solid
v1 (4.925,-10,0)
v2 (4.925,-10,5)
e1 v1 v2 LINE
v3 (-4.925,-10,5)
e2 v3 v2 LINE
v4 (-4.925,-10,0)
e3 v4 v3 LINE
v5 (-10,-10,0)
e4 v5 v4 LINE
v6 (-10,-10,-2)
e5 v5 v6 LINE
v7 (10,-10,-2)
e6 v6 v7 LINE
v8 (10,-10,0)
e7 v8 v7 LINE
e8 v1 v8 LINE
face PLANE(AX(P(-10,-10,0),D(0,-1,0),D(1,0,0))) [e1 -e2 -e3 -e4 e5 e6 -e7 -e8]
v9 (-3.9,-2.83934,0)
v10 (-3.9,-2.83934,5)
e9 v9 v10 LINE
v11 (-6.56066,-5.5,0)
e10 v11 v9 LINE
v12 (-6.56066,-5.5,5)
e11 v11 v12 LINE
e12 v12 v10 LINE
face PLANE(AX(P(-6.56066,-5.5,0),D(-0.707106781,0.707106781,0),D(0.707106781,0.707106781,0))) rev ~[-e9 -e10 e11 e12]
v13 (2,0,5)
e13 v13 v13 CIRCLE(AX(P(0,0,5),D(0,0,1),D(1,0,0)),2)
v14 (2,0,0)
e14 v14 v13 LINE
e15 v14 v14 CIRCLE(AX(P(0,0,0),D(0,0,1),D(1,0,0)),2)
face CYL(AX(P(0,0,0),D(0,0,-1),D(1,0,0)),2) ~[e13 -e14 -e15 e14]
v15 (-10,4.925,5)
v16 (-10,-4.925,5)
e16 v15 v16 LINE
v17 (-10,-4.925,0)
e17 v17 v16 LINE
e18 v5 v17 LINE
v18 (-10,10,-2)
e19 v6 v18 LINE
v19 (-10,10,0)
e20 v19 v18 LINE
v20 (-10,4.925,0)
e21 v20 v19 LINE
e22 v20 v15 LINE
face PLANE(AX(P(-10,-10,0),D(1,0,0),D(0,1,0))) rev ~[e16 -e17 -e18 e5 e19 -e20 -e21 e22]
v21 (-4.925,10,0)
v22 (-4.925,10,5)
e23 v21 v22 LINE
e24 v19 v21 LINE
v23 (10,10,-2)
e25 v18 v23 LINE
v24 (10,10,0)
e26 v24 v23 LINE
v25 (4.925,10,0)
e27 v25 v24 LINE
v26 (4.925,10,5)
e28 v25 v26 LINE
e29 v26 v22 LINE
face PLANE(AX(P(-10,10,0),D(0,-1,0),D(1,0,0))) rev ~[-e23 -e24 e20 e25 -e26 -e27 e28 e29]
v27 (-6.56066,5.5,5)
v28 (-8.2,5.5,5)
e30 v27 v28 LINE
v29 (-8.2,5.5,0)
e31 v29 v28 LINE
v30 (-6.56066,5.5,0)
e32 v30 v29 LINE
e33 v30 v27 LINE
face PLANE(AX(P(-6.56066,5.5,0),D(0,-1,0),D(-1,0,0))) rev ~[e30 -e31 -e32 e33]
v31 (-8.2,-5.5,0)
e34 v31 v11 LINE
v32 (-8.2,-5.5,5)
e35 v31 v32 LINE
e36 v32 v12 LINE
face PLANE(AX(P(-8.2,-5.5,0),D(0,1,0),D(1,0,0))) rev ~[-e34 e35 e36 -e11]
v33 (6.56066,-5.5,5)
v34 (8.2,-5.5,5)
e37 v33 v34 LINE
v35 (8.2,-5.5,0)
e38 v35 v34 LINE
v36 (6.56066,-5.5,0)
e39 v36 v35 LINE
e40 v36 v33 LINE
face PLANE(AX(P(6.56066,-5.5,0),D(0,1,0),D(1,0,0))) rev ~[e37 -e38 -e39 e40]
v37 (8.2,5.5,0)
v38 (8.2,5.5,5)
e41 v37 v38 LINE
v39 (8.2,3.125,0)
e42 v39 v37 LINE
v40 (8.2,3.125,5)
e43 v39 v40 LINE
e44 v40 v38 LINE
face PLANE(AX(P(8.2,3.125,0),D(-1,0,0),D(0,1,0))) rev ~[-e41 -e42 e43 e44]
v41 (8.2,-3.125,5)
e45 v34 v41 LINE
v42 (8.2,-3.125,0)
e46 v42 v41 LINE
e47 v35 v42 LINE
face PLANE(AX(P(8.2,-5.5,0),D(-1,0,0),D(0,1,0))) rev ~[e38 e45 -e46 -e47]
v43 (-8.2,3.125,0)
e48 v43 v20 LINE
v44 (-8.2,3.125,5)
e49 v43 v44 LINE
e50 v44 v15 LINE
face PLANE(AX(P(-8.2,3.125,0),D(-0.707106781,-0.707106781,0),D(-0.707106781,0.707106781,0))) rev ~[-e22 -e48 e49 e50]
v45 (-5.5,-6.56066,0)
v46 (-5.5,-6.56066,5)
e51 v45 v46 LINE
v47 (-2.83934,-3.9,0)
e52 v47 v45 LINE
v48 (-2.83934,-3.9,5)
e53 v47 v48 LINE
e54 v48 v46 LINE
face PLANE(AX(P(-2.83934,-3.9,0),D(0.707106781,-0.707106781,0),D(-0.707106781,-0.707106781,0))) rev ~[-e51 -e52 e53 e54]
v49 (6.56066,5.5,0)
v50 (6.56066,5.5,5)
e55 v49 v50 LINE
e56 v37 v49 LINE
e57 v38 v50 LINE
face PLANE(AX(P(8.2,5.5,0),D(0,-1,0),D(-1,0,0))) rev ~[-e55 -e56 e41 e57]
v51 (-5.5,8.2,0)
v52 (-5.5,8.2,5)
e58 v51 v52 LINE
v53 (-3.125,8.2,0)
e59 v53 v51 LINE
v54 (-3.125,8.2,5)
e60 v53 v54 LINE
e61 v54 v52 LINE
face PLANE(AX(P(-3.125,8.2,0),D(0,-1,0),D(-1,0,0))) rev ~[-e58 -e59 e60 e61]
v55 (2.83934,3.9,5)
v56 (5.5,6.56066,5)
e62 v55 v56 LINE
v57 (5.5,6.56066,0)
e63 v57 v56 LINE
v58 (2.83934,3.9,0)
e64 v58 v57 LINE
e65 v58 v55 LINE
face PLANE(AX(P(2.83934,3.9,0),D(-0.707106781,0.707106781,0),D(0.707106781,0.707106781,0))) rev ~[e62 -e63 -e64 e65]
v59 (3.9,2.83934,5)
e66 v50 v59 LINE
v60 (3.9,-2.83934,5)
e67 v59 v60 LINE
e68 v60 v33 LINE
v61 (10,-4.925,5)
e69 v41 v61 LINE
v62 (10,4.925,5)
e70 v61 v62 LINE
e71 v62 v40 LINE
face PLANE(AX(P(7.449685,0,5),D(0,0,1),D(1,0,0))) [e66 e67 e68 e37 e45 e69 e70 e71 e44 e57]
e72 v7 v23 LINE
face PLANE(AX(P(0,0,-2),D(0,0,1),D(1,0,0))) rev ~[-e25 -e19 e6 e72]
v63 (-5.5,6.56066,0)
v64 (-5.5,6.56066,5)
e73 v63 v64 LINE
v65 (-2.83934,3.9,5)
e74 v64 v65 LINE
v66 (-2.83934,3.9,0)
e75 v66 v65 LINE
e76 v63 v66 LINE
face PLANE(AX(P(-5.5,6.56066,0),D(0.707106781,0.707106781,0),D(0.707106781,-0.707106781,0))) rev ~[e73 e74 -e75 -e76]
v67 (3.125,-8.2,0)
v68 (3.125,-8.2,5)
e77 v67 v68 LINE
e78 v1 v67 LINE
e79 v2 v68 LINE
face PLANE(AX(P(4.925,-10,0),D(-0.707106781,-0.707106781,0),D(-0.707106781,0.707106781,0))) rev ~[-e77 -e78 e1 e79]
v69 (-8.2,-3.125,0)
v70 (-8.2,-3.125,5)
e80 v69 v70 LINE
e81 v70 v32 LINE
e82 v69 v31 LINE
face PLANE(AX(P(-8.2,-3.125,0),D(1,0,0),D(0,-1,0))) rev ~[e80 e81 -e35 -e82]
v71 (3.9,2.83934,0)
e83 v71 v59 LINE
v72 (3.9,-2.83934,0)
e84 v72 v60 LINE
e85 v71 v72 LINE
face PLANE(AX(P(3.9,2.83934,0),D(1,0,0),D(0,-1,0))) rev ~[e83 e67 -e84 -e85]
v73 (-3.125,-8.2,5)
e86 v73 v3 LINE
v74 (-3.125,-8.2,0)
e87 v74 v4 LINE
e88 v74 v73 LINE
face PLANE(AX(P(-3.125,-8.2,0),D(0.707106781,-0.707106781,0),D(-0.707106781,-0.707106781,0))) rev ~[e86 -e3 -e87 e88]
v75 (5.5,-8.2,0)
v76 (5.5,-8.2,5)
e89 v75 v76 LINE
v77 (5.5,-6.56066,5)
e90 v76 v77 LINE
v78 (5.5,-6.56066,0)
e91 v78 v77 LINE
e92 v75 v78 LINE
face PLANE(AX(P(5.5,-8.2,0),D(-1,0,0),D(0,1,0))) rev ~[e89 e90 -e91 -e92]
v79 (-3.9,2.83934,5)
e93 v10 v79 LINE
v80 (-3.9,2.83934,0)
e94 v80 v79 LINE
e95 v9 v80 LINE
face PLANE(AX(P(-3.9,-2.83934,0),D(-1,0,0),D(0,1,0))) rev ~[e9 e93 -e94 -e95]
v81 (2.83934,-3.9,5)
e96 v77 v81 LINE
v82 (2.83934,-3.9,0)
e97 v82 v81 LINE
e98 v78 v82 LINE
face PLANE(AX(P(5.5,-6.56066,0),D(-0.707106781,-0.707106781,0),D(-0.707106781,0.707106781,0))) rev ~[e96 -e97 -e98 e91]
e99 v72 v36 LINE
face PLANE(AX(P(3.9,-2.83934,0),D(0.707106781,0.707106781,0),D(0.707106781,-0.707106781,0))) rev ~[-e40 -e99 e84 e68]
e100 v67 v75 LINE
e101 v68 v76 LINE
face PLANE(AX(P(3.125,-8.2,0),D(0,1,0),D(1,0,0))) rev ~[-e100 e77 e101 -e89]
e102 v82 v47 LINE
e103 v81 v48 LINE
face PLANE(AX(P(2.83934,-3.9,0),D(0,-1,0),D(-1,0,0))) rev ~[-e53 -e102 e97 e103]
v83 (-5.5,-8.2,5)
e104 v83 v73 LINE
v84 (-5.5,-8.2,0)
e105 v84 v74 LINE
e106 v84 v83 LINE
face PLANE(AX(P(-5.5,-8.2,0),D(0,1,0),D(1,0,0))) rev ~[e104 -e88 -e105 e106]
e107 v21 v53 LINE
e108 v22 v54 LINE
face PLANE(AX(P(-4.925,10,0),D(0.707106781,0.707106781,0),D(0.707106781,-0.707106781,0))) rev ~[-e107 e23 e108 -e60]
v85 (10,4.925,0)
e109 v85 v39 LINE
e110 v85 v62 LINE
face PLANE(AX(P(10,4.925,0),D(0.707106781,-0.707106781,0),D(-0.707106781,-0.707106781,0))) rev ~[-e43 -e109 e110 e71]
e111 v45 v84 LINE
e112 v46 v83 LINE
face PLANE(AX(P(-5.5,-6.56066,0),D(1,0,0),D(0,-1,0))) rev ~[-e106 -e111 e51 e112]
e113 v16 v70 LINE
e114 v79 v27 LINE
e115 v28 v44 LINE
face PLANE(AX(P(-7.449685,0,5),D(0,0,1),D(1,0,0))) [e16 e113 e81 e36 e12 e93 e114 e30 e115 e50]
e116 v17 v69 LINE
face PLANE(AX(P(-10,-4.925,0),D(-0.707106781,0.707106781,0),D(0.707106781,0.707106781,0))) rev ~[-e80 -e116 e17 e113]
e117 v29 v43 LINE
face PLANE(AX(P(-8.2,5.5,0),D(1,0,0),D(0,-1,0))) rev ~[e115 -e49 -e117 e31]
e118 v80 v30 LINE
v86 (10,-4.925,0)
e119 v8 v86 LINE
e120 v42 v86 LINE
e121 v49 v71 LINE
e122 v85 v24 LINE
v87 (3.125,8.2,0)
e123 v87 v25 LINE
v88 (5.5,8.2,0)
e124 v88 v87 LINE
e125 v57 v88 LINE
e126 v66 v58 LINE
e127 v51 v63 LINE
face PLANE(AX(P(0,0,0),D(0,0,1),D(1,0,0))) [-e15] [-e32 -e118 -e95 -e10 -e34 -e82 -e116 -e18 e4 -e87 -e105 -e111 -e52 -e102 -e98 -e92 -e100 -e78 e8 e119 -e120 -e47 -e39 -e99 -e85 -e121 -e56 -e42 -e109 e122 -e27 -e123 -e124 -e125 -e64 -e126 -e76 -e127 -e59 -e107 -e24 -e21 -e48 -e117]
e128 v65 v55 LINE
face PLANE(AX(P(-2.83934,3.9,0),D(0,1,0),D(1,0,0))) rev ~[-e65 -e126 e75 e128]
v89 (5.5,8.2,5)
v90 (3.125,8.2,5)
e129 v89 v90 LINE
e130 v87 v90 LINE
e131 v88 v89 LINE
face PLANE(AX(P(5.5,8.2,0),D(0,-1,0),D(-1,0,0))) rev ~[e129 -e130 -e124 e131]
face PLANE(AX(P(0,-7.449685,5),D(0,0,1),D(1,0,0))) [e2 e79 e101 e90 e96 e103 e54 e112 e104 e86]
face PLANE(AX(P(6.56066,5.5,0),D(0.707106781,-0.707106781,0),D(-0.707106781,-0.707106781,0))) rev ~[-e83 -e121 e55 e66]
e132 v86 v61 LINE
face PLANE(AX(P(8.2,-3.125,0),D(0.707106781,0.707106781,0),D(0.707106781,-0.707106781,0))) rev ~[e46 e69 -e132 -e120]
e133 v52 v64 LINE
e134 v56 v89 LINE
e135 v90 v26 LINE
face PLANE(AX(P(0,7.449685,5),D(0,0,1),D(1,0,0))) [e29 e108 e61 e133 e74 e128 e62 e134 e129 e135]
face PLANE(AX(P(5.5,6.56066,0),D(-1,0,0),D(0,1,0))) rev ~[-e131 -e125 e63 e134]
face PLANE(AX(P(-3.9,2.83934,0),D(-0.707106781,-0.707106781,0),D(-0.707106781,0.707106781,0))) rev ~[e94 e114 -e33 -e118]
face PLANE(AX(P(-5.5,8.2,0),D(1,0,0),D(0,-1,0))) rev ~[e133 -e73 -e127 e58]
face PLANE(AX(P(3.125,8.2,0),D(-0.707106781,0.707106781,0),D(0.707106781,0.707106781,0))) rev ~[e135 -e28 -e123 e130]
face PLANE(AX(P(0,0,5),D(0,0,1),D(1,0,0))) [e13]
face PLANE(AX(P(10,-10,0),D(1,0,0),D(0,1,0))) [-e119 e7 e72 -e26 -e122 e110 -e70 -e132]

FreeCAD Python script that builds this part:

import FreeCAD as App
import Part
import Sketcher
Q = App.Units.Quantity

doc = App.newDocument("Part")
params = doc.addObject("Spreadsheet::Sheet", "Params")
for row, (alias, value) in enumerate([
    ("sketch1_width", "9.85 mm"),
    ("pad1_length", "5 mm"),
    ("sketch2_diameter", "4 mm"),
    ("pad2_length", "5 mm"),
    ("sketch3_height", "9.85 mm"),
    ("pad3_length", "5 mm"),
    ("sketch4_height", "9.85 mm"),
    ("pad4_length", "5 mm"),
    ("sketch5_width", "9.85 mm"),
    ("pad5_length", "5 mm"),
    ("sketch6_width", "20 mm"),
    ("pad6_length", "2 mm"),
], start=1):
    params.set(f"A{row}", alias)
    params.set(f"B{row}", "=" + value)
    params.setAlias(f"B{row}", alias)

body = doc.addObject("PartDesign::Body", "Body")

# Sketch on XY plane
sketch1 = doc.addObject("Sketcher::SketchObject", "Sketch")
body.addObject(sketch1)
sketch1.AttachmentSupport = (doc.XY_Plane, [""])
sketch1.MapMode = "FlatFace"
sketch1.addGeometry([
    Part.LineSegment(App.Vector(4.925, 10, 0), App.Vector(-4.925, 10, 0)),  # 0
    Part.LineSegment(App.Vector(-4.925, 10, 0), App.Vector(-3.125, 8.2, 0)),  # 1
    Part.LineSegment(App.Vector(-3.125, 8.2, 0), App.Vector(-5.5, 8.2, 0)),  # 2
    Part.LineSegment(App.Vector(-5.5, 8.2, 0), App.Vector(-5.5, 6.56066, 0)),  # 3
    Part.LineSegment(App.Vector(-5.5, 6.56066, 0), App.Vector(-2.83934, 3.9, 0)),  # 4
    Part.LineSegment(App.Vector(-2.83934, 3.9, 0), App.Vector(2.83934, 3.9, 0)),  # 5
    Part.LineSegment(App.Vector(2.83934, 3.9, 0), App.Vector(5.5, 6.56066, 0)),  # 6
    Part.LineSegment(App.Vector(5.5, 6.56066, 0), App.Vector(5.5, 8.2, 0)),  # 7
    Part.LineSegment(App.Vector(5.5, 8.2, 0), App.Vector(3.125, 8.2, 0)),  # 8
    Part.LineSegment(App.Vector(3.125, 8.2, 0), App.Vector(4.925, 10, 0)),  # 9
], False)
sketch1.addConstraint([
    Sketcher.Constraint("Coincident", 0, 2, 1, 1),
    Sketcher.Constraint("Coincident", 1, 2, 2, 1),
    Sketcher.Constraint("Coincident", 2, 2, 3, 1),
    Sketcher.Constraint("Coincident", 3, 2, 4, 1),
    Sketcher.Constraint("Coincident", 4, 2, 5, 1),
    Sketcher.Constraint("Coincident", 5, 2, 6, 1),
    Sketcher.Constraint("Coincident", 6, 2, 7, 1),
    Sketcher.Constraint("Coincident", 7, 2, 8, 1),
    Sketcher.Constraint("Coincident", 8, 2, 9, 1),
    Sketcher.Constraint("Coincident", 9, 2, 0, 1),
    Sketcher.Constraint("Horizontal", 0),
    Sketcher.Constraint("Horizontal", 2),
    Sketcher.Constraint("Vertical", 3),
    Sketcher.Constraint("Horizontal", 5),
    Sketcher.Constraint("Vertical", 7),
    Sketcher.Constraint("Horizontal", 8),
    Sketcher.Constraint("Symmetric", 3, 2, 6, 2, -2),
    Sketcher.Constraint("Symmetric", 1, 2, 8, 2, -2),
    Sketcher.Constraint("Parallel", 1, 4),
    Sketcher.Constraint("Perpendicular", 4, 6),
    Sketcher.Constraint("Parallel", 6, 9),
    Sketcher.Constraint("Equal", 4, 6),
    Sketcher.Constraint("DistanceY", -1, 1, 0, 2, Q("10 mm")),
    Sketcher.Constraint("DistanceX", 3, 2, 6, 2, Q("11 mm")),
    Sketcher.Constraint("DistanceX", 0, 2, 0, 1, Q("9.85 mm")),
    Sketcher.Constraint("DistanceY", -1, 1, 1, 2, Q("8.2 mm")),
    Sketcher.Constraint("DistanceY", -1, 1, 4, 2, Q("3.9 mm")),
    Sketcher.Constraint("DistanceX", 5, 1, 5, 2, Q("5.67868 mm")),
])
sketch1.setExpression("Constraints[24]", "Params.sketch1_width")
pad1 = doc.addObject("PartDesign::Pad", "Pad")
body.addObject(pad1)
pad1.Profile = sketch1
pad1.setExpression("Length", "Params.pad1_length")
body2 = doc.addObject("PartDesign::Body", "Body001")

# Sketch on XY plane
sketch2 = doc.addObject("Sketcher::SketchObject", "Sketch001")
body2.addObject(sketch2)
sketch2.AttachmentSupport = (doc.getObject("XY_Plane001"), [""])
sketch2.MapMode = "FlatFace"
sketch2.addGeometry(Part.Circle(App.Vector(0, 0, 0), App.Vector(0, 0, 1), 2), False)
sketch2.addConstraint([
    Sketcher.Constraint("Coincident", 0, 3, -1, 1),
    Sketcher.Constraint("Diameter", 0, Q("4 mm")),
])
sketch2.setExpression("Constraints[1]", "Params.sketch2_diameter")
pad2 = doc.addObject("PartDesign::Pad", "Pad001")
body2.addObject(pad2)
pad2.Profile = sketch2
pad2.setExpression("Length", "Params.pad2_length")
body3 = doc.addObject("PartDesign::Body", "Body002")

# Sketch on XY plane
sketch3 = doc.addObject("Sketcher::SketchObject", "Sketch002")
body3.addObject(sketch3)
sketch3.AttachmentSupport = (doc.getObject("XY_Plane002"), [""])
sketch3.MapMode = "FlatFace"
sketch3.addGeometry([
    Part.LineSegment(App.Vector(10, -4.925, 0), App.Vector(10, 4.925, 0)),  # 0
    Part.LineSegment(App.Vector(10, 4.925, 0), App.Vector(8.2, 3.125, 0)),  # 1
    Part.LineSegment(App.Vector(8.2, 3.125, 0), App.Vector(8.2, 5.5, 0)),  # 2
    Part.LineSegment(App.Vector(8.2, 5.5, 0), App.Vector(6.56066, 5.5, 0)),  # 3
    Part.LineSegment(App.Vector(6.56066, 5.5, 0), App.Vector(3.9, 2.83934, 0)),  # 4
    Part.LineSegment(App.Vector(3.9, 2.83934, 0), App.Vector(3.9, -2.83934, 0)),  # 5
    Part.LineSegment(App.Vector(3.9, -2.83934, 0), App.Vector(6.56066, -5.5, 0)),  # 6
    Part.LineSegment(App.Vector(6.56066, -5.5, 0), App.Vector(8.2, -5.5, 0)),  # 7
    Part.LineSegment(App.Vector(8.2, -5.5, 0), App.Vector(8.2, -3.125, 0)),  # 8
    Part.LineSegment(App.Vector(8.2, -3.125, 0), App.Vector(10, -4.925, 0)),  # 9
], False)
sketch3.addConstraint([
    Sketcher.Constraint("Coincident", 0, 2, 1, 1),
    Sketcher.Constraint("Coincident", 1, 2, 2, 1),
    Sketcher.Constraint("Coincident", 2, 2, 3, 1),
    Sketcher.Constraint("Coincident", 3, 2, 4, 1),
    Sketcher.Constraint("Coincident", 4, 2, 5, 1),
    Sketcher.Constraint("Coincident", 5, 2, 6, 1),
    Sketcher.Constraint("Coincident", 6, 2, 7, 1),
    Sketcher.Constraint("Coincident", 7, 2, 8, 1),
    Sketcher.Constraint("Coincident", 8, 2, 9, 1),
    Sketcher.Constraint("Coincident", 9, 2, 0, 1),
    Sketcher.Constraint("Vertical", 0),
    Sketcher.Constraint("Vertical", 2),
    Sketcher.Constraint("Horizontal", 3),
    Sketcher.Constraint("Vertical", 5),
    Sketcher.Constraint("Horizontal", 7),
    Sketcher.Constraint("Vertical", 8),
    Sketcher.Constraint("Symmetric", 3, 2, 6, 2, -1),
    Sketcher.Constraint("Symmetric", 1, 2, 8, 2, -1),
    Sketcher.Constraint("Parallel", 1, 4),
    Sketcher.Constraint("Perpendicular", 4, 6),
    Sketcher.Constraint("Parallel", 6, 9),
    Sketcher.Constraint("Equal", 4, 6),
    Sketcher.Constraint("DistanceX", -1, 1, 0, 2, Q("10 mm")),
    Sketcher.Constraint("DistanceY", 6, 2, 3, 2, Q("11 mm")),
    Sketcher.Constraint("DistanceY", 0, 1, 0, 2, Q("9.85 mm")),
    Sketcher.Constraint("DistanceX", -1, 1, 1, 2, Q("8.2 mm")),
    Sketcher.Constraint("DistanceX", -1, 1, 4, 2, Q("3.9 mm")),
    Sketcher.Constraint("DistanceX", 3, 2, 3, 1, Q("1.63934 mm")),
])
sketch3.setExpression("Constraints[24]", "Params.sketch3_height")
pad3 = doc.addObject("PartDesign::Pad", "Pad002")
body3.addObject(pad3)
pad3.Profile = sketch3
pad3.setExpression("Length", "Params.pad3_length")
body4 = doc.addObject("PartDesign::Body", "Body003")

# Sketch on XY plane
sketch4 = doc.addObject("Sketcher::SketchObject", "Sketch003")
body4.addObject(sketch4)
sketch4.AttachmentSupport = (doc.getObject("XY_Plane003"), [""])
sketch4.MapMode = "FlatFace"
sketch4.addGeometry([
    Part.LineSegment(App.Vector(-8.2, 3.125, 0), App.Vector(-10, 4.925, 0)),  # 0
    Part.LineSegment(App.Vector(-10, 4.925, 0), App.Vector(-10, -4.925, 0)),  # 1
    Part.LineSegment(App.Vector(-10, -4.925, 0), App.Vector(-8.2, -3.125, 0)),  # 2
    Part.LineSegment(App.Vector(-8.2, -3.125, 0), App.Vector(-8.2, -5.5, 0)),  # 3
    Part.LineSegment(App.Vector(-8.2, -5.5, 0), App.Vector(-6.56066, -5.5, 0)),  # 4
    Part.LineSegment(App.Vector(-6.56066, -5.5, 0), App.Vector(-3.9, -2.83934, 0)),  # 5
    Part.LineSegment(App.Vector(-3.9, -2.83934, 0), App.Vector(-3.9, 2.83934, 0)),  # 6
    Part.LineSegment(App.Vector(-3.9, 2.83934, 0), App.Vector(-6.56066, 5.5, 0)),  # 7
    Part.LineSegment(App.Vector(-6.56066, 5.5, 0), App.Vector(-8.2, 5.5, 0)),  # 8
    Part.LineSegment(App.Vector(-8.2, 5.5, 0), App.Vector(-8.2, 3.125, 0)),  # 9
], False)
sketch4.addConstraint([
    Sketcher.Constraint("Coincident", 0, 2, 1, 1),
    Sketcher.Constraint("Coincident", 1, 2, 2, 1),
    Sketcher.Constraint("Coincident", 2, 2, 3, 1),
    Sketcher.Constraint("Coincident", 3, 2, 4, 1),
    Sketcher.Constraint("Coincident", 4, 2, 5, 1),
    Sketcher.Constraint("Coincident", 5, 2, 6, 1),
    Sketcher.Constraint("Coincident", 6, 2, 7, 1),
    Sketcher.Constraint("Coincident", 7, 2, 8, 1),
    Sketcher.Constraint("Coincident", 8, 2, 9, 1),
    Sketcher.Constraint("Coincident", 9, 2, 0, 1),
    Sketcher.Constraint("Vertical", 1),
    Sketcher.Constraint("Vertical", 3),
    Sketcher.Constraint("Horizontal", 4),
    Sketcher.Constraint("Vertical", 6),
    Sketcher.Constraint("Horizontal", 8),
    Sketcher.Constraint("Vertical", 9),
    Sketcher.Constraint("Symmetric", 4, 2, 7, 2, -1),
    Sketcher.Constraint("Symmetric", 2, 2, 9, 2, -1),
    Sketcher.Constraint("Perpendicular", 0, 2),
    Sketcher.Constraint("Parallel", 2, 5),
    Sketcher.Constraint("Perpendicular", 5, 7),
    Sketcher.Constraint("Equal", 0, 2),
    Sketcher.Constraint("DistanceX", 0, 2, -1, 1, Q("10 mm")),
    Sketcher.Constraint("DistanceY", 1, 2, 1, 1, Q("9.85 mm")),
    Sketcher.Constraint("DistanceX", 2, 2, -1, 1, Q("8.2 mm")),
    Sketcher.Constraint("DistanceY", 3, 2, -1, 1, Q("5.5 mm")),
    Sketcher.Constraint("DistanceX", 5, 2, -1, 1, Q("3.9 mm")),
    Sketcher.Constraint("DistanceX", 4, 1, 4, 2, Q("1.63934 mm")),
])
sketch4.setExpression("Constraints[23]", "Params.sketch4_height")
pad4 = doc.addObject("PartDesign::Pad", "Pad003")
body4.addObject(pad4)
pad4.Profile = sketch4
pad4.setExpression("Length", "Params.pad4_length")
body5 = doc.addObject("PartDesign::Body", "Body004")

# Sketch on XY plane
sketch5 = doc.addObject("Sketcher::SketchObject", "Sketch004")
body5.addObject(sketch5)
sketch5.AttachmentSupport = (doc.getObject("XY_Plane004"), [""])
sketch5.MapMode = "FlatFace"
sketch5.addGeometry([
    Part.LineSegment(App.Vector(-3.125, -8.2, 0), App.Vector(-4.925, -10, 0)),  # 0
    Part.LineSegment(App.Vector(-4.925, -10, 0), App.Vector(4.925, -10, 0)),  # 1
    Part.LineSegment(App.Vector(4.925, -10, 0), App.Vector(3.125, -8.2, 0)),  # 2
    Part.LineSegment(App.Vector(3.125, -8.2, 0), App.Vector(5.5, -8.2, 0)),  # 3
    Part.LineSegment(App.Vector(5.5, -8.2, 0), App.Vector(5.5, -6.56066, 0)),  # 4
    Part.LineSegment(App.Vector(5.5, -6.56066, 0), App.Vector(2.83934, -3.9, 0)),  # 5
    Part.LineSegment(App.Vector(2.83934, -3.9, 0), App.Vector(-2.83934, -3.9, 0)),  # 6
    Part.LineSegment(App.Vector(-2.83934, -3.9, 0), App.Vector(-5.5, -6.56066, 0)),  # 7
    Part.LineSegment(App.Vector(-5.5, -6.56066, 0), App.Vector(-5.5, -8.2, 0)),  # 8
    Part.LineSegment(App.Vector(-5.5, -8.2, 0), App.Vector(-3.125, -8.2, 0)),  # 9
], False)
sketch5.addConstraint([
    Sketcher.Constraint("Coincident", 0, 2, 1, 1),
    Sketcher.Constraint("Coincident", 1, 2, 2, 1),
    Sketcher.Constraint("Coincident", 2, 2, 3, 1),
    Sketcher.Constraint("Coincident", 3, 2, 4, 1),
    Sketcher.Constraint("Coincident", 4, 2, 5, 1),
    Sketcher.Constraint("Coincident", 5, 2, 6, 1),
    Sketcher.Constraint("Coincident", 6, 2, 7, 1),
    Sketcher.Constraint("Coincident", 7, 2, 8, 1),
    Sketcher.Constraint("Coincident", 8, 2, 9, 1),
    Sketcher.Constraint("Coincident", 9, 2, 0, 1),
    Sketcher.Constraint("Horizontal", 1),
    Sketcher.Constraint("Horizontal", 3),
    Sketcher.Constraint("Vertical", 4),
    Sketcher.Constraint("Horizontal", 6),
    Sketcher.Constraint("Vertical", 8),
    Sketcher.Constraint("Horizontal", 9),
    Sketcher.Constraint("Symmetric", 4, 2, 7, 2, -2),
    Sketcher.Constraint("Symmetric", 2, 2, 9, 2, -2),
    Sketcher.Constraint("Perpendicular", 0, 2),
    Sketcher.Constraint("Parallel", 2, 5),
    Sketcher.Constraint("Perpendicular", 5, 7),
    Sketcher.Constraint("Equal", 0, 2),
    Sketcher.Constraint("DistanceY", 0, 2, -1, 1, Q("10 mm")),
    Sketcher.Constraint("DistanceX", 1, 1, 1, 2, Q("9.85 mm")),
    Sketcher.Constraint("DistanceY", 2, 2, -1, 1, Q("8.2 mm")),
    Sketcher.Constraint("DistanceX", -1, 1, 3, 2, Q("5.5 mm")),
    Sketcher.Constraint("DistanceY", 5, 2, -1, 1, Q("3.9 mm")),
    Sketcher.Constraint("DistanceX", 6, 2, 6, 1, Q("5.67868 mm")),
])
sketch5.setExpression("Constraints[23]", "Params.sketch5_width")
pad5 = doc.addObject("PartDesign::Pad", "Pad004")
body5.addObject(pad5)
pad5.Profile = sketch5
pad5.setExpression("Length", "Params.pad5_length")
body.AllowCompound = True
doc.recompute()

boolean = doc.addObject("PartDesign::Boolean", "Boolean")
body.addObject(boolean)
boolean.Type = "Fuse"
boolean.addObjects([body2])
doc.recompute()

boolean2 = doc.addObject("PartDesign::Boolean", "Boolean001")
body.addObject(boolean2)
boolean2.Type = "Fuse"
boolean2.addObjects([body3])
doc.recompute()

boolean3 = doc.addObject("PartDesign::Boolean", "Boolean002")
body.addObject(boolean3)
boolean3.Type = "Fuse"
boolean3.addObjects([body4])
doc.recompute()

boolean4 = doc.addObject("PartDesign::Boolean", "Boolean003")
body.addObject(boolean4)
boolean4.Type = "Fuse"
boolean4.addObjects([body5])

# Sketch on XY plane
sketch6 = doc.addObject("Sketcher::SketchObject", "Sketch005")
body.addObject(sketch6)
sketch6.AttachmentSupport = (doc.XY_Plane, [""])
sketch6.MapMode = "FlatFace"
sketch6.addGeometry([
    Part.LineSegment(App.Vector(-10, 10, 0), App.Vector(-10, -10, 0)),
    Part.LineSegment(App.Vector(-10, -10, 0), App.Vector(10, -10, 0)),
    Part.LineSegment(App.Vector(10, -10, 0), App.Vector(10, 10, 0)),
    Part.LineSegment(App.Vector(10, 10, 0), App.Vector(-10, 10, 0)),
], False)
sketch6.addConstraint([
    Sketcher.Constraint("Coincident", 0, 2, 1, 1),
    Sketcher.Constraint("Coincident", 1, 2, 2, 1),
    Sketcher.Constraint("Coincident", 2, 2, 3, 1),
    Sketcher.Constraint("Coincident", 3, 2, 0, 1),
    Sketcher.Constraint("Vertical", 0),
    Sketcher.Constraint("Horizontal", 1),
    Sketcher.Constraint("Vertical", 2),
    Sketcher.Constraint("Horizontal", 3),
    Sketcher.Constraint("Symmetric", 0, 2, 2, 2, -1, 1),
    Sketcher.Constraint("Equal", 3, 0),
    Sketcher.Constraint("DistanceX", 1, 1, 1, 2, Q("20 mm")),
])
sketch6.setExpression("Constraints[10]", "Params.sketch6_width")
pad6 = doc.addObject("PartDesign::Pad", "Pad005")
body.addObject(pad6)
pad6.Profile = sketch6
pad6.setExpression("Length", "Params.pad6_length")
pad6.Reversed = True

doc.recompute()
